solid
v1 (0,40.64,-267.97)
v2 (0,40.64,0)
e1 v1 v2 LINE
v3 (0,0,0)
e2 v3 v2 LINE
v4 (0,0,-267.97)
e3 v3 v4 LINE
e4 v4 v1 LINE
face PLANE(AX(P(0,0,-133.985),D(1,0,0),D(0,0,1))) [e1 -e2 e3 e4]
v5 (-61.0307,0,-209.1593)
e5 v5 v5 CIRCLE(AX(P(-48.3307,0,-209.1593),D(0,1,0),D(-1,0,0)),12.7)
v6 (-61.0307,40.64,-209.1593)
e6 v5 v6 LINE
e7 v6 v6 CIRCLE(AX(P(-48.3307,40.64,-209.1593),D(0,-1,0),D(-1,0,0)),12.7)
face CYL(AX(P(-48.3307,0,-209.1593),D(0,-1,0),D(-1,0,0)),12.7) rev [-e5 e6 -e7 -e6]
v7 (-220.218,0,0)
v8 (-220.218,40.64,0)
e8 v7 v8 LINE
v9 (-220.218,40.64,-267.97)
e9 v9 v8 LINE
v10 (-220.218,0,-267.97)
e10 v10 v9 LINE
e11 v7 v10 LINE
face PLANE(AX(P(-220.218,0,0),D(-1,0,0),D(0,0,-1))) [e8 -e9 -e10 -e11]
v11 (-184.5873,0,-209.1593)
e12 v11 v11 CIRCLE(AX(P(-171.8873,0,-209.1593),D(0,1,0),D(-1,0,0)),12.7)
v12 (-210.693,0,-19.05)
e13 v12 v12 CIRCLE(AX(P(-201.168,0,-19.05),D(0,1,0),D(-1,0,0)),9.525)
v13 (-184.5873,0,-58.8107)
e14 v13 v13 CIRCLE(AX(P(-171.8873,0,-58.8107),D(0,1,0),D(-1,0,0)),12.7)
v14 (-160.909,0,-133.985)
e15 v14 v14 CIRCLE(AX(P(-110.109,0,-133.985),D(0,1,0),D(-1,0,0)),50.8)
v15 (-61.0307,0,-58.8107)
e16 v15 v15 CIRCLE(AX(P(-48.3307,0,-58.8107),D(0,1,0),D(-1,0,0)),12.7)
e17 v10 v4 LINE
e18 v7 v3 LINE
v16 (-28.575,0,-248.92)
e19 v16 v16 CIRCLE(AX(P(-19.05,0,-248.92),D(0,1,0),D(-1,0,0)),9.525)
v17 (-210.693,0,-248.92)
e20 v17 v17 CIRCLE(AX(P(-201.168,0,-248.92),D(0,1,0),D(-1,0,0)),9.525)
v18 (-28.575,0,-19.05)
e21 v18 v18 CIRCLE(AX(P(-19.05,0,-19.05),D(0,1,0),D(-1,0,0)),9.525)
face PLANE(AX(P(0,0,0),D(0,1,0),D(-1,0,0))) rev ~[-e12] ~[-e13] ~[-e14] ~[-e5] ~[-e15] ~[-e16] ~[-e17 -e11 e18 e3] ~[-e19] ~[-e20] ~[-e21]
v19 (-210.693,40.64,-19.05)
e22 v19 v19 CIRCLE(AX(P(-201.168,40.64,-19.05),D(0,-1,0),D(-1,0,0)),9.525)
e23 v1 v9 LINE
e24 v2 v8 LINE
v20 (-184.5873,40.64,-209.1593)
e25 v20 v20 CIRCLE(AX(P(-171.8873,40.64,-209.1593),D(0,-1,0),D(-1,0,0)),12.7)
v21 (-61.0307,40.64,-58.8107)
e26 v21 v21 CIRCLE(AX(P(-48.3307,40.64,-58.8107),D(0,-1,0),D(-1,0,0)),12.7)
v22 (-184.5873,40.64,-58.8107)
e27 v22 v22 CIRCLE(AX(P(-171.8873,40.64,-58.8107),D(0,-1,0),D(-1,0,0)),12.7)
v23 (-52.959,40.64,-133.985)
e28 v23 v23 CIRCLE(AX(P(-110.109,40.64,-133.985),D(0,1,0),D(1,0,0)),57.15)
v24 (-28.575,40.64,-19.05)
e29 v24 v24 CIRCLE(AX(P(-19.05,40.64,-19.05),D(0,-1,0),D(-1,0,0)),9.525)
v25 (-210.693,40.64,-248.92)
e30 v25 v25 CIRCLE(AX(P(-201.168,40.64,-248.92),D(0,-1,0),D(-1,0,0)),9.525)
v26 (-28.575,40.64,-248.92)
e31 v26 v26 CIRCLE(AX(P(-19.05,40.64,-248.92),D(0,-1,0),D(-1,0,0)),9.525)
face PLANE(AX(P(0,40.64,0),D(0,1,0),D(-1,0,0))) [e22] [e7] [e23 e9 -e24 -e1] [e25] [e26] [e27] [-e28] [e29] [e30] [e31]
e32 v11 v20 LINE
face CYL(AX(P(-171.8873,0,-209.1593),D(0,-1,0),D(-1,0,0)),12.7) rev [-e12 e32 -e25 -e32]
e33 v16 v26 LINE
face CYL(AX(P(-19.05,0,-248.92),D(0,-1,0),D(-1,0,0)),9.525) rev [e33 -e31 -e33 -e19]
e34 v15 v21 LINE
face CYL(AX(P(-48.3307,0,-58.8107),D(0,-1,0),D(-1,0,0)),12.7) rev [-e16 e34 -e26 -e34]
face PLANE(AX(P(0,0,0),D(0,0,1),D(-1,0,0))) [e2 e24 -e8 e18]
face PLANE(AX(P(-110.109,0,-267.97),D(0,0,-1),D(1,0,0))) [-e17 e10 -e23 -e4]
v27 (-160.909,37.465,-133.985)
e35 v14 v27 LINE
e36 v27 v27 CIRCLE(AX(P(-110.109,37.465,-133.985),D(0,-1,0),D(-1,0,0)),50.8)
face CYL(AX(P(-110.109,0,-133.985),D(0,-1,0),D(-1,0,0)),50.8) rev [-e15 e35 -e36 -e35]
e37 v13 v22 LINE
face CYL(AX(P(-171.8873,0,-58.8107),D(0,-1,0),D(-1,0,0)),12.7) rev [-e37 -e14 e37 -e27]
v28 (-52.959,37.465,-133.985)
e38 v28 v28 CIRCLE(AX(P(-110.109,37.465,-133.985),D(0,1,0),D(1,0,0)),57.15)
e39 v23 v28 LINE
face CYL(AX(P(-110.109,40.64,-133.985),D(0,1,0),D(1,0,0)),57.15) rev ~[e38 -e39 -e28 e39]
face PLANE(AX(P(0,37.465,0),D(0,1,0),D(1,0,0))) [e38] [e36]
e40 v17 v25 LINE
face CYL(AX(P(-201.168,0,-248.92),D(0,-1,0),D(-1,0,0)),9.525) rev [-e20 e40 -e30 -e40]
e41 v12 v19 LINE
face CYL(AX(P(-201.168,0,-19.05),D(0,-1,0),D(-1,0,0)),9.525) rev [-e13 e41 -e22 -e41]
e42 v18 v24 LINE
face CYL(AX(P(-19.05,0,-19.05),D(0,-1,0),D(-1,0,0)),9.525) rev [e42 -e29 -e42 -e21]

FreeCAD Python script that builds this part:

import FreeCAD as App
import Part
import Sketcher

V = App.Vector
Q = App.Units.Quantity


def add_polygon(sketch, points):
    """Adds a closed chain of lines whose ends are joined by coincident constraints."""
    first, n = sketch.GeometryCount, len(points)
    for a, b in zip(points, points[1:] + points[:1]):
        sketch.addGeometry(Part.LineSegment(App.Vector(*a, 0), App.Vector(*b, 0)), False)
    for i in range(n):
        sketch.addConstraint(Sketcher.Constraint("Coincident", first + i, 2, first + (i + 1) % n, 1))

doc = App.newDocument("Part")
body = doc.addObject("PartDesign::Body", "Body")

# Sketch on XZ plane
sketch1 = doc.addObject("Sketcher::SketchObject", "Sketch")
body.addObject(sketch1)
sketch1.AttachmentSupport = (doc.XZ_Plane, [""])
sketch1.MapMode = "FlatFace"
add_polygon(sketch1, [(0, 0), (0, -268), (-220, -268), (-220, 0)])  # lines 0-3
sketch1.addConstraint(Sketcher.Constraint("Vertical", 0))
sketch1.addConstraint(Sketcher.Constraint("Horizontal", 1))
sketch1.addConstraint(Sketcher.Constraint("Vertical", 2))
sketch1.addConstraint(Sketcher.Constraint("Horizontal", 3))
sketch1.addConstraint(Sketcher.Constraint("Coincident", 3, 2, -1, 1))
sketch1.addConstraint(Sketcher.Constraint("DistanceX", 1, 2, 1, 1, Q("8.67 in")))
sketch1.addConstraint(Sketcher.Constraint("DistanceY", 0, 2, 0, 1, Q("10.55 in")))
pad1 = doc.addObject("PartDesign::Pad", "Pad")
body.addObject(pad1)
pad1.Profile = sketch1
pad1.Length = Q("1.6 in")
pad1.Reversed = True

# Sketch on XZ plane
sketch2 = doc.addObject("Sketcher::SketchObject", "Sketch001")
body.addObject(sketch2)
sketch2.AttachmentSupport = (doc.XZ_Plane, [""])
sketch2.MapMode = "FlatFace"
sketch2.addGeometry(Part.Circle(V(-110, -134, 0), V(0, 0, 1), 51), False)
sketch2.addConstraint(Sketcher.Constraint("Diameter", 0, Q("4 in")))
sketch2.addConstraint(Sketcher.Constraint("DistanceX", 0, 3, -1, 1, Q("4.335 in")))
sketch2.addConstraint(Sketcher.Constraint("DistanceY", 0, 3, -1, 1, Q("5.275 in")))
pocket1 = doc.addObject("PartDesign::Pocket", "Pocket")
body.addObject(pocket1)
pocket1.Profile = sketch2
pocket1.Length = Q("1.6 in")

# Sketch on XZ plane
sketch3 = doc.addObject("Sketcher::SketchObject", "Sketch002")
body.addObject(sketch3)
sketch3.AttachmentSupport = (doc.XZ_Plane, [""])
sketch3.MapMode = "FlatFace"
sketch3.AttachmentOffset = App.Placement(V(0, 0, -1.6 * 25.4), App.Rotation())
sketch3.addGeometry(Part.Circle(V(-110, -134, 0), V(0, 0, 1), 57), False)
sketch3.addConstraint(Sketcher.Constraint("Diameter", 0, Q("4.5 in")))
sketch3.addConstraint(Sketcher.Constraint("DistanceX", 0, 3, -1, 1, Q("4.335 in")))
sketch3.addConstraint(Sketcher.Constraint("DistanceY", 0, 3, -1, 1, Q("5.275 in")))
pocket2 = doc.addObject("PartDesign::Pocket", "Pocket001")
body.addObject(pocket2)
pocket2.Profile = sketch3
pocket2.Length = Q("0.125 in")
pocket2.Reversed = True

# Sketch on XZ plane
sketch4 = doc.addObject("Sketcher::SketchObject", "Sketch003")
body.addObject(sketch4)
sketch4.AttachmentSupport = (doc.XZ_Plane, [""])
sketch4.MapMode = "FlatFace"
sketch4.addGeometry(Part.Circle(V(-19, -19, 0), V(0, 0, 1), 10), False)
sketch4.addGeometry(Part.Circle(V(-201, -19, 0), V(0, 0, 1), 10), False)
sketch4.addGeometry(Part.Circle(V(-19, -249, 0), V(0, 0, 1), 10), False)
sketch4.addGeometry(Part.Circle(V(-201, -249, 0), V(0, 0, 1), 10), False)
sketch4.addConstraint(Sketcher.Constraint("Equal", 0, 1))
sketch4.addConstraint(Sketcher.Constraint("Equal", 1, 2))
sketch4.addConstraint(Sketcher.Constraint("Equal", 2, 3))
sketch4.addConstraint(Sketcher.Constraint("Horizontal", 0, 3, 1, 3))
sketch4.addConstraint(Sketcher.Constraint("Horizontal", 2, 3, 3, 3))
sketch4.addConstraint(Sketcher.Constraint("Vertical", 0, 3, 2, 3))
sketch4.addConstraint(Sketcher.Constraint("Vertical", 1, 3, 3, 3))
sketch4.addConstraint(Sketcher.Constraint("Diameter", 0, Q("0.75 in")))
sketch4.addConstraint(Sketcher.Constraint("DistanceY", 2, 3, -1, 1, Q("9.8 in")))
sketch4.addConstraint(Sketcher.Constraint("DistanceX", 0, 3, -1, 1, Q("0.75 in")))
sketch4.addConstraint(Sketcher.Constraint("DistanceY", 0, 3, -1, 1, Q("0.75 in")))
sketch4.addConstraint(Sketcher.Constraint("DistanceX", 1, 3, -1, 1, Q("7.92 in")))
pocket3 = doc.addObject("PartDesign::Pocket", "Pocket002")
body.addObject(pocket3)
pocket3.Profile = sketch4
pocket3.Length = Q("3.4375 in")

# Sketch on XZ plane
sketch5 = doc.addObject("Sketcher::SketchObject", "Sketch004")
body.addObject(sketch5)
sketch5.AttachmentSupport = (doc.XZ_Plane, [""])
sketch5.MapMode = "FlatFace"
sketch5.addGeometry(Part.Circle(V(-48, -59, 0), V(0, 0, 1), 13), False)
sketch5.addGeometry(Part.Circle(V(-172, -59, 0), V(0, 0, 1), 13), False)
sketch5.addGeometry(Part.Circle(V(-48, -209, 0), V(0, 0, 1), 13), False)
sketch5.addGeometry(Part.Circle(V(-172, -209, 0), V(0, 0, 1), 13), False)
sketch5.addConstraint(Sketcher.Constraint("Equal", 0, 1))
sketch5.addConstraint(Sketcher.Constraint("Equal", 1, 2))
sketch5.addConstraint(Sketcher.Constraint("Equal", 2, 3))
sketch5.addConstraint(Sketcher.Constraint("Horizontal", 0, 3, 1, 3))
sketch5.addConstraint(Sketcher.Constraint("Horizontal", 2, 3, 3, 3))
sketch5.addConstraint(Sketcher.Constraint("Vertical", 0, 3, 2, 3))
sketch5.addConstraint(Sketcher.Constraint("Vertical", 1, 3, 3, 3))
sketch5.addConstraint(Sketcher.Constraint("Diameter", 0, Q("1 in")))
sketch5.addConstraint(Sketcher.Constraint("DistanceX", 0, 3, -1, 1, 48.3307))
sketch5.addConstraint(Sketcher.Constraint("DistanceY", 0, 3, -1, 1, 58.8107))
sketch5.addConstraint(Sketcher.Constraint("DistanceX", 1, 3, -1, 1, 171.8873))
sketch5.addConstraint(Sketcher.Constraint("DistanceY", 2, 3, -1, 1, 209.1593))
pocket4 = doc.addObject("PartDesign::Pocket", "Pocket003")
body.addObject(pocket4)
pocket4.Profile = sketch5
pocket4.Length = Q("3.8125 in")

doc.recompute()
